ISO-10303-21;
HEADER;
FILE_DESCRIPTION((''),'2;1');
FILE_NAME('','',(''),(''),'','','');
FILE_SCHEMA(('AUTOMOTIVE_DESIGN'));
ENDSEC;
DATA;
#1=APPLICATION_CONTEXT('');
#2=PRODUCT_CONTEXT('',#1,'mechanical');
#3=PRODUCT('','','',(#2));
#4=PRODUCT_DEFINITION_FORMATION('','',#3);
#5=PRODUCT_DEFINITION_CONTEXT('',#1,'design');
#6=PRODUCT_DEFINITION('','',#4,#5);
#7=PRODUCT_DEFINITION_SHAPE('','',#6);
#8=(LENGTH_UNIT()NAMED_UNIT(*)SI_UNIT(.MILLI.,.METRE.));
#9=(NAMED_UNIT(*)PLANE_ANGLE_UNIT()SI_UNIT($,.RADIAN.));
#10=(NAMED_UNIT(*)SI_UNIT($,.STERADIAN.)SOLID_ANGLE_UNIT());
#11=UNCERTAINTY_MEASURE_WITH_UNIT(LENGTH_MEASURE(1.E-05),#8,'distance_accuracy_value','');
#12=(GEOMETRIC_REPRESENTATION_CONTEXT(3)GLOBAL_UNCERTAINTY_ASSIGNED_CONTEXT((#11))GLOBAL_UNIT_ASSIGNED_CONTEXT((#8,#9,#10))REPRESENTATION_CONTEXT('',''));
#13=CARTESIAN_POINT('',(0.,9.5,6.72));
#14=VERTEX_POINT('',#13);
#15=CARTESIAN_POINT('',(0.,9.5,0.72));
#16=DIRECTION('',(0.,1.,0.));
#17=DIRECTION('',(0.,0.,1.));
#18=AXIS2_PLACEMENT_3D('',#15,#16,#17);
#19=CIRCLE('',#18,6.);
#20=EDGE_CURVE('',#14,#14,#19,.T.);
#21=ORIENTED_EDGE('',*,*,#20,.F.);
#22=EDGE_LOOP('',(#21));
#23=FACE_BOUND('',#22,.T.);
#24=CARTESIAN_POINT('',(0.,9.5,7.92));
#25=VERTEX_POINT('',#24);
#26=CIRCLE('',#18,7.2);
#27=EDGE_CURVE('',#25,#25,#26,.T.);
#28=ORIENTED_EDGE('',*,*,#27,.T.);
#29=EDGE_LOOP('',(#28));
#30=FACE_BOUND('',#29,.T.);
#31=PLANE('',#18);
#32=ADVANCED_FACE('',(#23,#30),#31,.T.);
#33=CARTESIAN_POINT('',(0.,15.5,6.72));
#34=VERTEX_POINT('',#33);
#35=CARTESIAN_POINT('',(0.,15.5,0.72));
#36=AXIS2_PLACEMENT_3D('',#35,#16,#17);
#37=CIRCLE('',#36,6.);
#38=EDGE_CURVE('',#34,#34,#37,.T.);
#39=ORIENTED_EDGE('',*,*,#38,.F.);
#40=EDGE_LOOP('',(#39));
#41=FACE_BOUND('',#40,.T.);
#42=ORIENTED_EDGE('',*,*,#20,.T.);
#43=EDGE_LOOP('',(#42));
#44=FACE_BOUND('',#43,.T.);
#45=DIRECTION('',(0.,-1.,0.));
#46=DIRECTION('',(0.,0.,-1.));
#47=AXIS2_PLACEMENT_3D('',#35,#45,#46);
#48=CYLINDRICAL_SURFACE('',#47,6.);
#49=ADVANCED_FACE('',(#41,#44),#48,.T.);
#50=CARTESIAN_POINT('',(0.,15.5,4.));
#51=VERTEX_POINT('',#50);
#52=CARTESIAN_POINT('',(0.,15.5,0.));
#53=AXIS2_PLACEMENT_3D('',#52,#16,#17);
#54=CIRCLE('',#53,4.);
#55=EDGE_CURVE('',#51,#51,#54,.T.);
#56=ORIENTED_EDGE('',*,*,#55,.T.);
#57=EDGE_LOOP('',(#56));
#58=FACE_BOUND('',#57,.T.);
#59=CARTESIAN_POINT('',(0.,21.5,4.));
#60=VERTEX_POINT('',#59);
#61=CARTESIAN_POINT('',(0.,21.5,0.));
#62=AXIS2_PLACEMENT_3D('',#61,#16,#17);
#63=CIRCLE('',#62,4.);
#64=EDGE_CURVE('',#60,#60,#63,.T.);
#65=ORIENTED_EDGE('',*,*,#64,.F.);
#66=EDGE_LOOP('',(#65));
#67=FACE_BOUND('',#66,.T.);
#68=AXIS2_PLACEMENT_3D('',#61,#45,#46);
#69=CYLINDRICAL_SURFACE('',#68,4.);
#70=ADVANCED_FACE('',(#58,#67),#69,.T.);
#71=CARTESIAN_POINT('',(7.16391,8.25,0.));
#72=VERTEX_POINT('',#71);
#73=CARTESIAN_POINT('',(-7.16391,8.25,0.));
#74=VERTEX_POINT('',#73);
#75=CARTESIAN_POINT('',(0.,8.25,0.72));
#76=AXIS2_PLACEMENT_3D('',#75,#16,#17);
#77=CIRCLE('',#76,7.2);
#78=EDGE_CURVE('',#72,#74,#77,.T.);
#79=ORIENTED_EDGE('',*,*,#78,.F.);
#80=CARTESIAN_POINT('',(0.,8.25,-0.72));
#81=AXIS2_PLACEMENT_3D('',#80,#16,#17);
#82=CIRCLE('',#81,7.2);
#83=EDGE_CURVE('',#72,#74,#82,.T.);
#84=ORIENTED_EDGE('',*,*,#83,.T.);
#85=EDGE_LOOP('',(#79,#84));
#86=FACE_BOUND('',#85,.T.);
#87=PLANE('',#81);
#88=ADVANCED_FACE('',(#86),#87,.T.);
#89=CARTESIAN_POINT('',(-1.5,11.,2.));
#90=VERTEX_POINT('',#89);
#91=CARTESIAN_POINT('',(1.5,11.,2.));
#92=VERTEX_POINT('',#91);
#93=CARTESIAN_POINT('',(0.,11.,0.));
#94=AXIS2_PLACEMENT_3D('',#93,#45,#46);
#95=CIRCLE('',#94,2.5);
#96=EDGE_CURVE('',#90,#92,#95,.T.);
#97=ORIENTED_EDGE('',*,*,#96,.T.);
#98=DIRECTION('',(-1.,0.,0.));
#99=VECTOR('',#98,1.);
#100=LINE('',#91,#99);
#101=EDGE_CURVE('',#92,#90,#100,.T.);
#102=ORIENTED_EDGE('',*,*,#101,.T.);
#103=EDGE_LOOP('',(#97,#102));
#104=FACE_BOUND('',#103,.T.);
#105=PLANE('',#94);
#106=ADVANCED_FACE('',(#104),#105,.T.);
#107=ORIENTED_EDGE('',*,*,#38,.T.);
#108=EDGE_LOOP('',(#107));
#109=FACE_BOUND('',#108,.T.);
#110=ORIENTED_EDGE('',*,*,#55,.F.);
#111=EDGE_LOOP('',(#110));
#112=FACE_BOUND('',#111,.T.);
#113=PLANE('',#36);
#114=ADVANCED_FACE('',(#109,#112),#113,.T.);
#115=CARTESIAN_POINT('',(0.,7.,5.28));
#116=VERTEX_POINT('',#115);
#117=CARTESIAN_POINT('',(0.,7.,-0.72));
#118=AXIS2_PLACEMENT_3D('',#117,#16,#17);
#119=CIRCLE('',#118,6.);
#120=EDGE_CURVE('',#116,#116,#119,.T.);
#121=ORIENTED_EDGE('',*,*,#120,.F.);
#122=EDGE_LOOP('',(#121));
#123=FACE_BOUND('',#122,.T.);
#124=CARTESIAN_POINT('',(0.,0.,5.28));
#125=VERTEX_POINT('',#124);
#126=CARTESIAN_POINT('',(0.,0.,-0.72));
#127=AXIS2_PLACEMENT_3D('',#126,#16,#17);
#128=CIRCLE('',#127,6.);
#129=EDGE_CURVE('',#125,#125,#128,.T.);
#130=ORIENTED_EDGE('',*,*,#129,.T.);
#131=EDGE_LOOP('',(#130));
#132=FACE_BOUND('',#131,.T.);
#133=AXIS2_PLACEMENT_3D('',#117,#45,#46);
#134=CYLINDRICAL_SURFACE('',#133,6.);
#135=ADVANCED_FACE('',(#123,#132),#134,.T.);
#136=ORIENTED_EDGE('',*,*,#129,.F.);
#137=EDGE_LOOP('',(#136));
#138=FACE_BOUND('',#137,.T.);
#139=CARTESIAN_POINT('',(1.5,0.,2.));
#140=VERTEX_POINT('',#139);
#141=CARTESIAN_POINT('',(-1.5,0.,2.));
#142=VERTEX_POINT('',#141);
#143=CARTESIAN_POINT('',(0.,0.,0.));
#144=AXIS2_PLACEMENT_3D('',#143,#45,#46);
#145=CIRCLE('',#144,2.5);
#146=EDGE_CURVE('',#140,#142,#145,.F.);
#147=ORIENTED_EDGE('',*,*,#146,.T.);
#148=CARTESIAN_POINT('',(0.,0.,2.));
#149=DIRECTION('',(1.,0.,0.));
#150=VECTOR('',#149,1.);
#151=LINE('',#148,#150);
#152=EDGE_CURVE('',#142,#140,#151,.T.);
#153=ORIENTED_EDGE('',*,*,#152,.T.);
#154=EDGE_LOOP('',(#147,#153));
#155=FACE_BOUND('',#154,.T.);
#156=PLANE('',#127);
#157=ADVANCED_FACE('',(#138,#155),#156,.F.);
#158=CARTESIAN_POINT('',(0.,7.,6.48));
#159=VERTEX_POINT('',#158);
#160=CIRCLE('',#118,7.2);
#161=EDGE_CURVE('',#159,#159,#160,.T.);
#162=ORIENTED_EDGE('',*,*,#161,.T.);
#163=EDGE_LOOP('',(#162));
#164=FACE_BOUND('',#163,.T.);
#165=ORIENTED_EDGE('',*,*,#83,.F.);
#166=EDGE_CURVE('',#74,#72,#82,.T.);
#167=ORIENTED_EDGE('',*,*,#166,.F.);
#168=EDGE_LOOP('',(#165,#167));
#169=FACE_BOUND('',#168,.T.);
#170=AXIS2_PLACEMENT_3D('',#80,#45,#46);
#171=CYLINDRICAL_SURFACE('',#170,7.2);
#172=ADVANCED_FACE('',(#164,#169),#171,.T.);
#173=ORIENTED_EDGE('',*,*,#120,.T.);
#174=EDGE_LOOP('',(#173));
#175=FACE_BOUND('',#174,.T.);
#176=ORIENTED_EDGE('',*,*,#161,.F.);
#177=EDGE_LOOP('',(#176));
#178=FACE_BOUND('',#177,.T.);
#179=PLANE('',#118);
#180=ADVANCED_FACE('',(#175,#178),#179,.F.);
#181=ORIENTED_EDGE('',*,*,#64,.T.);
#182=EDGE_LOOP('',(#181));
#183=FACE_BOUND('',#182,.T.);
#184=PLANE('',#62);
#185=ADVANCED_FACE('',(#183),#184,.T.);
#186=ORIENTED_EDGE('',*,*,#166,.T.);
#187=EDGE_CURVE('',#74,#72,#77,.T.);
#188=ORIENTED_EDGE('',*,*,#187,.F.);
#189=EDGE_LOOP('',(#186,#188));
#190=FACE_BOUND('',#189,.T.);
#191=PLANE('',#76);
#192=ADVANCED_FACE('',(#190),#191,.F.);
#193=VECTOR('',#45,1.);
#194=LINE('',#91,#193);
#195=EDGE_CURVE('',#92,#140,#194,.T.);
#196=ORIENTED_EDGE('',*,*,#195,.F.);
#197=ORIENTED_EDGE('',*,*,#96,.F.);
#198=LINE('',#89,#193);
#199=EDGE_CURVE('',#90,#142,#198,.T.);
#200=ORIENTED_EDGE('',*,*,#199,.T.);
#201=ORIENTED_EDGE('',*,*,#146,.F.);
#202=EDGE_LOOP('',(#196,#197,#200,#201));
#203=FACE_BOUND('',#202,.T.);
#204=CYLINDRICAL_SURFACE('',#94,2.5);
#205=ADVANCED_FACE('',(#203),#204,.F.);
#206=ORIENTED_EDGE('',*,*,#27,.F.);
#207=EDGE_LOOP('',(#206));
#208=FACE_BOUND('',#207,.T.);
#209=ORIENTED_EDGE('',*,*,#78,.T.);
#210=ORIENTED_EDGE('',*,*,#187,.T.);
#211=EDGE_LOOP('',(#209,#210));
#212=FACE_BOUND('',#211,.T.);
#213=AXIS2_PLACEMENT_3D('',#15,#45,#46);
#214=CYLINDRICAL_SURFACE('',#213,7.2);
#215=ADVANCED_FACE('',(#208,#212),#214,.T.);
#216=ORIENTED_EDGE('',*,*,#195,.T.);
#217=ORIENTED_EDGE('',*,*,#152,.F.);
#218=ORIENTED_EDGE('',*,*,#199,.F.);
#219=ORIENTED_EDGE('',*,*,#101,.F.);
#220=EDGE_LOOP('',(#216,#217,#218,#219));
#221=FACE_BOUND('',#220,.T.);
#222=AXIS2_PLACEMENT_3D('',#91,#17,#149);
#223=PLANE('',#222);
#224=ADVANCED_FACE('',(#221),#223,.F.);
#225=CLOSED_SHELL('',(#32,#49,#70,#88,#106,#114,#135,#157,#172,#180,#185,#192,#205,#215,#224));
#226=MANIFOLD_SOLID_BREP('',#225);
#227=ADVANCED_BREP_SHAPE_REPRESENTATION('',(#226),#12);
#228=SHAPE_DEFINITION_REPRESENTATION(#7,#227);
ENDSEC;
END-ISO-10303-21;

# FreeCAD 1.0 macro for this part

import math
import FreeCAD as App
import Part
import Sketcher
from FreeCAD import Vector

doc = App.newDocument("Part")
body = doc.addObject("PartDesign::Body", "Body")

sketch1 = body.newObject("Sketcher::SketchObject", "Sketch")
sketch1.AttachmentSupport = (doc.getObject("XZ_Plane"), [""])
sketch1.MapMode = "FlatFace"
sketch1.addGeometry(Part.Circle(Vector(0, -0.72, 0), Vector(0, 0, 1), 6), False)
sketch1.addConstraint(Sketcher.Constraint("PointOnObject", 0, 3, -2))
sketch1.addConstraint(Sketcher.Constraint("Diameter", 0, 12.0))
sketch1.addConstraint(Sketcher.Constraint("DistanceY", 0, 3, -1, 1, 0.72))
pad1 = body.newObject("PartDesign::Pad", "Pad")
pad1.Profile = sketch1
pad1.Length = 7
pad1.Reversed = True

sketch2 = body.newObject("Sketcher::SketchObject", "Sketch001")
sketch2.AttachmentSupport = (doc.getObject("XZ_Plane"), [""])
sketch2.MapMode = "FlatFace"
sketch2.AttachmentOffset = App.Placement(Vector(0, 0, -7), App.Rotation())
sketch2.addGeometry(Part.Circle(Vector(0, -0.72, 0), Vector(0, 0, 1), 7.2), False)
sketch2.addConstraint(Sketcher.Constraint("PointOnObject", 0, 3, -2))
sketch2.addConstraint(Sketcher.Constraint("Diameter", 0, 14.4))
sketch2.addConstraint(Sketcher.Constraint("DistanceY", 0, 3, -1, 1, 0.72))
pad2 = body.newObject("PartDesign::Pad", "Pad001")
pad2.Profile = sketch2
pad2.Length = 1.25
pad2.Reversed = True

sketch3 = body.newObject("Sketcher::SketchObject", "Sketch002")
sketch3.AttachmentSupport = (doc.getObject("XZ_Plane"), [""])
sketch3.MapMode = "FlatFace"
sketch3.AttachmentOffset = App.Placement(Vector(0, 0, -8.25), App.Rotation())
sketch3.addGeometry(Part.Circle(Vector(0, 0.72, 0), Vector(0, 0, 1), 7.2), False)
sketch3.addConstraint(Sketcher.Constraint("PointOnObject", 0, 3, -2))
sketch3.addConstraint(Sketcher.Constraint("Diameter", 0, 14.4))
sketch3.addConstraint(Sketcher.Constraint("DistanceY", -1, 1, 0, 3, 0.72))
pad3 = body.newObject("PartDesign::Pad", "Pad002")
pad3.Profile = sketch3
pad3.Length = 1.25
pad3.Reversed = True

sketch4 = body.newObject("Sketcher::SketchObject", "Sketch003")
sketch4.AttachmentSupport = (doc.getObject("XZ_Plane"), [""])
sketch4.MapMode = "FlatFace"
sketch4.AttachmentOffset = App.Placement(Vector(0, 0, -9.5), App.Rotation())
sketch4.addGeometry(Part.Circle(Vector(0, 0.72, 0), Vector(0, 0, 1), 6), False)
sketch4.addConstraint(Sketcher.Constraint("PointOnObject", 0, 3, -2))
sketch4.addConstraint(Sketcher.Constraint("Diameter", 0, 12.0))
sketch4.addConstraint(Sketcher.Constraint("DistanceY", -1, 1, 0, 3, 0.72))
pad4 = body.newObject("PartDesign::Pad", "Pad003")
pad4.Profile = sketch4
pad4.Length = 6
pad4.Reversed = True

sketch5 = body.newObject("Sketcher::SketchObject", "Sketch004")
sketch5.AttachmentSupport = (doc.getObject("XZ_Plane"), [""])
sketch5.MapMode = "FlatFace"
sketch5.addGeometry(Part.LineSegment(Vector(1.5, 2, 0), Vector(-1.5, 2, 0)), False)
sketch5.addGeometry(Part.ArcOfCircle(Part.Circle(Vector(0, 0, 0), Vector(0, 0, 1), 2.5), math.radians(126.869898), math.radians(413.130102)), False)
sketch5.addConstraint(Sketcher.Constraint("Coincident", 0, 1, 1, 2))
sketch5.addConstraint(Sketcher.Constraint("Coincident", 1, 1, 0, 2))
sketch5.addConstraint(Sketcher.Constraint("Horizontal", 0))
sketch5.addConstraint(Sketcher.Constraint("Coincident", 1, 3, -1, 1))
sketch5.addConstraint(Sketcher.Constraint("Radius", 1, 2.5))
sketch5.addConstraint(Sketcher.Constraint("DistanceX", 0, 2, 0, 1, 3.0))
pocket1 = body.newObject("PartDesign::Pocket", "Pocket")
pocket1.Profile = sketch5
pocket1.Type = "TwoLengths"
pocket1.Length = 19.836571
pocket1.Length2 = 11
pocket1.Reversed = True

sketch6 = body.newObject("Sketcher::SketchObject", "Sketch005")
sketch6.AttachmentSupport = (doc.getObject("XZ_Plane"), [""])
sketch6.MapMode = "FlatFace"
sketch6.AttachmentOffset = App.Placement(Vector(0, 0, -15.5), App.Rotation())
sketch6.addGeometry(Part.Circle(Vector(0, 0, 0), Vector(0, 0, 1), 4), False)
sketch6.addConstraint(Sketcher.Constraint("Coincident", 0, 3, -1, 1))
sketch6.addConstraint(Sketcher.Constraint("Diameter", 0, 8.0))
pad5 = body.newObject("PartDesign::Pad", "Pad004")
pad5.Profile = sketch6
pad5.Length = 6
pad5.Reversed = True

doc.recompute()
